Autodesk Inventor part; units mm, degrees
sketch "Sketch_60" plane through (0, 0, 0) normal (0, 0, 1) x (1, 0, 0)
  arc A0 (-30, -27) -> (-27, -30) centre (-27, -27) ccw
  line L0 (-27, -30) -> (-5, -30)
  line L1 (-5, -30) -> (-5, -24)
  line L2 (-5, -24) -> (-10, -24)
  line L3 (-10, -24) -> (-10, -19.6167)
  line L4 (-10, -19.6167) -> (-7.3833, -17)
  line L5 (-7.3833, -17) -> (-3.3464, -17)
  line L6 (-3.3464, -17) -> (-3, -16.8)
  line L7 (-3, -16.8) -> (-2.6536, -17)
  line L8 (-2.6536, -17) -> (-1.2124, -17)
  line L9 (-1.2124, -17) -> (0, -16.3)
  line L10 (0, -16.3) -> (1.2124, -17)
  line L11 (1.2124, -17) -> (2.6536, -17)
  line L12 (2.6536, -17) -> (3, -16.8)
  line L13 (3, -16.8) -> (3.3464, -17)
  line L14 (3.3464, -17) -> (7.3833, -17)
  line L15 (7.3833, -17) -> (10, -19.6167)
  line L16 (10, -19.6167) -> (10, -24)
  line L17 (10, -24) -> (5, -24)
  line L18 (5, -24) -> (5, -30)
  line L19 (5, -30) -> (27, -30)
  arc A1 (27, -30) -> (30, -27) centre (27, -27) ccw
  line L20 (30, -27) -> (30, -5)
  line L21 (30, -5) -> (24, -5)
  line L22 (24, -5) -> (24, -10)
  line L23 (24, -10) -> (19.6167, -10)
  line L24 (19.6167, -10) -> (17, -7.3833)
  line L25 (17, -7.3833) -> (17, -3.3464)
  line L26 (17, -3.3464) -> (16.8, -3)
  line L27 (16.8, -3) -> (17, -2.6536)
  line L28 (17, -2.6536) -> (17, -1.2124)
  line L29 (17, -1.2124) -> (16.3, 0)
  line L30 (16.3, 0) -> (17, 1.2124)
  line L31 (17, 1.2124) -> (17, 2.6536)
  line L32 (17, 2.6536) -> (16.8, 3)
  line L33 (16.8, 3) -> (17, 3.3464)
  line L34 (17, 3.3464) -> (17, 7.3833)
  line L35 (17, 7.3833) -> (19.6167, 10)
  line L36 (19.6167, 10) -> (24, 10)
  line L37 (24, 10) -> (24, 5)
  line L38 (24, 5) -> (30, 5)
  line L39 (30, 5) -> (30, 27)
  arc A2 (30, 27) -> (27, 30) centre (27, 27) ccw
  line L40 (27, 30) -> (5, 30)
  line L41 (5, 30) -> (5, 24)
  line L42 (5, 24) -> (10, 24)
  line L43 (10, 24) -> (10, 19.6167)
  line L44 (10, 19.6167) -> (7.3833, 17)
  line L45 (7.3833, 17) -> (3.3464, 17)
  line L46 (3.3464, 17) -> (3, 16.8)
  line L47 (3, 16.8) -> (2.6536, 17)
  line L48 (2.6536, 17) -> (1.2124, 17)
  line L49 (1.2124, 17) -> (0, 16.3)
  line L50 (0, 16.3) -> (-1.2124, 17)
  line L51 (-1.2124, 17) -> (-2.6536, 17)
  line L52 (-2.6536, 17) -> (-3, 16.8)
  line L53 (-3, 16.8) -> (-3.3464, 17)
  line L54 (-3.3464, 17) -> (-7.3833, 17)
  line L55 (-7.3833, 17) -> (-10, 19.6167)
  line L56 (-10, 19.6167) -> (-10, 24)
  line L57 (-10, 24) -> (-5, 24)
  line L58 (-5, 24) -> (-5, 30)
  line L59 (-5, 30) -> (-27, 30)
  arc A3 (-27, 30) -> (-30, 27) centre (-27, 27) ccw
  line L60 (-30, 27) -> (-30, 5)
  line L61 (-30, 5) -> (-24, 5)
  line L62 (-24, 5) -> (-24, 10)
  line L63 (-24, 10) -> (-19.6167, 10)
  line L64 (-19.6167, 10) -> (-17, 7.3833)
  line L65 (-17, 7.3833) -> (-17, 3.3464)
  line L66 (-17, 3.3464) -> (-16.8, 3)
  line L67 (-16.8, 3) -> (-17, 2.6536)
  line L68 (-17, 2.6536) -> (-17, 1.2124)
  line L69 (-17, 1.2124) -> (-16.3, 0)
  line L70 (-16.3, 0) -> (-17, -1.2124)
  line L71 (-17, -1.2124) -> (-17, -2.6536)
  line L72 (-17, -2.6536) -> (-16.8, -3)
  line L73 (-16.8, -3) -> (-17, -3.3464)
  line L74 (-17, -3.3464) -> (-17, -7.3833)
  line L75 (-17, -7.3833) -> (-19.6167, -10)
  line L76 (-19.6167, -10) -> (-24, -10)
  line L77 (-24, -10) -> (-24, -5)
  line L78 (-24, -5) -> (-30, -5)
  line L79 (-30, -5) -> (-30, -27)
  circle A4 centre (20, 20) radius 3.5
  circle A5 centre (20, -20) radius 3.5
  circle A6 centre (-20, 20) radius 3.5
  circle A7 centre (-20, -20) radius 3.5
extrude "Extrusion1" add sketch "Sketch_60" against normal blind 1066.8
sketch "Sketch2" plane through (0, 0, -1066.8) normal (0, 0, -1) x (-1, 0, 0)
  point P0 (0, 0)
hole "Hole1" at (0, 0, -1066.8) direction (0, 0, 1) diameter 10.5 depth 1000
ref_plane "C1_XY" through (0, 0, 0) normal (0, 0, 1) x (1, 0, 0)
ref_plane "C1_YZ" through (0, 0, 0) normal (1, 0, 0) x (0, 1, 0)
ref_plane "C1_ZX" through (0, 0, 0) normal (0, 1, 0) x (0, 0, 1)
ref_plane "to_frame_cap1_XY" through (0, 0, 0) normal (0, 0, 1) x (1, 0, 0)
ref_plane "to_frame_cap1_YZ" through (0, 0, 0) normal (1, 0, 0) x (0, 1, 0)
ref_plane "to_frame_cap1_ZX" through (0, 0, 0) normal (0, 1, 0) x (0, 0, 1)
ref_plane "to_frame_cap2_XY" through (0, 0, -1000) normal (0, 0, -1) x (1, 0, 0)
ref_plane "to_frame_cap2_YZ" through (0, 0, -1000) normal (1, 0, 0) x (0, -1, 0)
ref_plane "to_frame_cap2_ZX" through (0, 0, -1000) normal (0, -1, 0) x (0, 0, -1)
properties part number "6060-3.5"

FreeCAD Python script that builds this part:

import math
import FreeCAD as App
import Part
import Sketcher
from FreeCAD import Vector
Q = App.Units.Quantity

doc = App.newDocument("Part")
body = doc.addObject("PartDesign::Body", "Body")

# Sketch on XY plane
sketch1 = body.newObject("Sketcher::SketchObject", "Sketch")
sketch1.AttachmentSupport = (doc.getObject("XY_Plane"), [""])
sketch1.MapMode = "FlatFace"
sketch1.addGeometry([
    Part.LineSegment(Vector(-30, -5, 0), Vector(-30, -27, 0)),  # 0
    Part.ArcOfCircle(Part.Circle(Vector(-27, -27, 0), Vector(0, 0, 1), 3), math.radians(180), math.radians(270)),  # 1
    Part.LineSegment(Vector(-27, -30, 0), Vector(-5, -30, 0)),  # 2
    Part.LineSegment(Vector(-5, -30, 0), Vector(-5, -24, 0)),  # 3
    Part.LineSegment(Vector(-5, -24, 0), Vector(-10, -24, 0)),  # 4
    Part.LineSegment(Vector(-10, -24, 0), Vector(-10, -19.62, 0)),  # 5
    Part.LineSegment(Vector(-10, -19.62, 0), Vector(-7.38, -17, 0)),  # 6
    Part.LineSegment(Vector(-7.38, -17, 0), Vector(-3.35, -17, 0)),  # 7
    Part.LineSegment(Vector(-3.35, -17, 0), Vector(-3, -16.8, 0)),  # 8
    Part.LineSegment(Vector(-3, -16.8, 0), Vector(-2.65, -17, 0)),  # 9
    Part.LineSegment(Vector(-2.65, -17, 0), Vector(-1.21, -17, 0)),  # 10
    Part.LineSegment(Vector(-1.21, -17, 0), Vector(0, -16.3, 0)),  # 11
    Part.LineSegment(Vector(0, -16.3, 0), Vector(1.21, -17, 0)),  # 12
    Part.LineSegment(Vector(1.21, -17, 0), Vector(2.65, -17, 0)),  # 13
    Part.LineSegment(Vector(2.65, -17, 0), Vector(3, -16.8, 0)),  # 14
    Part.LineSegment(Vector(3, -16.8, 0), Vector(3.35, -17, 0)),  # 15
    Part.LineSegment(Vector(3.35, -17, 0), Vector(7.38, -17, 0)),  # 16
    Part.LineSegment(Vector(7.38, -17, 0), Vector(10, -19.62, 0)),  # 17
    Part.LineSegment(Vector(10, -19.62, 0), Vector(10, -24, 0)),  # 18
    Part.LineSegment(Vector(10, -24, 0), Vector(5, -24, 0)),  # 19
    Part.LineSegment(Vector(5, -24, 0), Vector(5, -30, 0)),  # 20
    Part.LineSegment(Vector(5, -30, 0), Vector(27, -30, 0)),  # 21
    Part.ArcOfCircle(Part.Circle(Vector(27, -27, 0), Vector(0, 0, 1), 3), math.radians(-90), math.radians(0)),  # 22
    Part.LineSegment(Vector(30, -27, 0), Vector(30, -5, 0)),  # 23
    Part.LineSegment(Vector(30, -5, 0), Vector(24, -5, 0)),  # 24
    Part.LineSegment(Vector(24, -5, 0), Vector(24, -10, 0)),  # 25
    Part.LineSegment(Vector(24, -10, 0), Vector(19.62, -10, 0)),  # 26
    Part.LineSegment(Vector(19.62, -10, 0), Vector(17, -7.38, 0)),  # 27
    Part.LineSegment(Vector(17, -7.38, 0), Vector(17, -3.35, 0)),  # 28
    Part.LineSegment(Vector(17, -3.35, 0), Vector(16.8, -3, 0)),  # 29
    Part.LineSegment(Vector(16.8, -3, 0), Vector(17, -2.65, 0)),  # 30
    Part.LineSegment(Vector(17, -2.65, 0), Vector(17, -1.21, 0)),  # 31
    Part.LineSegment(Vector(17, -1.21, 0), Vector(16.3, 0, 0)),  # 32
    Part.LineSegment(Vector(16.3, 0, 0), Vector(17, 1.21, 0)),  # 33
    Part.LineSegment(Vector(17, 1.21, 0), Vector(17, 2.65, 0)),  # 34
    Part.LineSegment(Vector(17, 2.65, 0), Vector(16.8, 3, 0)),  # 35
    Part.LineSegment(Vector(16.8, 3, 0), Vector(17, 3.35, 0)),  # 36
    Part.LineSegment(Vector(17, 3.35, 0), Vector(17, 7.38, 0)),  # 37
    Part.LineSegment(Vector(17, 7.38, 0), Vector(19.62, 10, 0)),  # 38
    Part.LineSegment(Vector(19.62, 10, 0), Vector(24, 10, 0)),  # 39
    Part.LineSegment(Vector(24, 10, 0), Vector(24, 5, 0)),  # 40
    Part.LineSegment(Vector(24, 5, 0), Vector(30, 5, 0)),  # 41
    Part.LineSegment(Vector(30, 5, 0), Vector(30, 27, 0)),  # 42
    Part.ArcOfCircle(Part.Circle(Vector(27, 27, 0), Vector(0, 0, 1), 3), math.radians(0), math.radians(90)),  # 43
    Part.LineSegment(Vector(27, 30, 0), Vector(5, 30, 0)),  # 44
    Part.LineSegment(Vector(5, 30, 0), Vector(5, 24, 0)),  # 45
    Part.LineSegment(Vector(5, 24, 0), Vector(10, 24, 0)),  # 46
    Part.LineSegment(Vector(10, 24, 0), Vector(10, 19.62, 0)),  # 47
    Part.LineSegment(Vector(10, 19.62, 0), Vector(7.38, 17, 0)),  # 48
    Part.LineSegment(Vector(7.38, 17, 0), Vector(3.35, 17, 0)),  # 49
    Part.LineSegment(Vector(3.35, 17, 0), Vector(3, 16.8, 0)),  # 50
    Part.LineSegment(Vector(3, 16.8, 0), Vector(2.65, 17, 0)),  # 51
    Part.LineSegment(Vector(2.65, 17, 0), Vector(1.21, 17, 0)),  # 52
    Part.LineSegment(Vector(1.21, 17, 0), Vector(0, 16.3, 0)),  # 53
    Part.LineSegment(Vector(0, 16.3, 0), Vector(-1.21, 17, 0)),  # 54
    Part.LineSegment(Vector(-1.21, 17, 0), Vector(-2.65, 17, 0)),  # 55
    Part.LineSegment(Vector(-2.65, 17, 0), Vector(-3, 16.8, 0)),  # 56
    Part.LineSegment(Vector(-3, 16.8, 0), Vector(-3.35, 17, 0)),  # 57
    Part.LineSegment(Vector(-3.35, 17, 0), Vector(-7.38, 17, 0)),  # 58
    Part.LineSegment(Vector(-7.38, 17, 0), Vector(-10, 19.62, 0)),  # 59
    Part.LineSegment(Vector(-10, 19.62, 0), Vector(-10, 24, 0)),  # 60
    Part.LineSegment(Vector(-10, 24, 0), Vector(-5, 24, 0)),  # 61
    Part.LineSegment(Vector(-5, 24, 0), Vector(-5, 30, 0)),  # 62
    Part.LineSegment(Vector(-5, 30, 0), Vector(-27, 30, 0)),  # 63
    Part.ArcOfCircle(Part.Circle(Vector(-27, 27, 0), Vector(0, 0, 1), 3), math.radians(90), math.radians(180)),  # 64
    Part.LineSegment(Vector(-30, 27, 0), Vector(-30, 5, 0)),  # 65
    Part.LineSegment(Vector(-30, 5, 0), Vector(-24, 5, 0)),  # 66
    Part.LineSegment(Vector(-24, 5, 0), Vector(-24, 10, 0)),  # 67
    Part.LineSegment(Vector(-24, 10, 0), Vector(-19.62, 10, 0)),  # 68
    Part.LineSegment(Vector(-19.62, 10, 0), Vector(-17, 7.38, 0)),  # 69
    Part.LineSegment(Vector(-17, 7.38, 0), Vector(-17, 3.35, 0)),  # 70
    Part.LineSegment(Vector(-17, 3.35, 0), Vector(-16.8, 3, 0)),  # 71
    Part.LineSegment(Vector(-16.8, 3, 0), Vector(-17, 2.65, 0)),  # 72
    Part.LineSegment(Vector(-17, 2.65, 0), Vector(-17, 1.21, 0)),  # 73
    Part.LineSegment(Vector(-17, 1.21, 0), Vector(-16.3, 0, 0)),  # 74
    Part.LineSegment(Vector(-16.3, 0, 0), Vector(-17, -1.21, 0)),  # 75
    Part.LineSegment(Vector(-17, -1.21, 0), Vector(-17, -2.65, 0)),  # 76
    Part.LineSegment(Vector(-17, -2.65, 0), Vector(-16.8, -3, 0)),  # 77
    Part.LineSegment(Vector(-16.8, -3, 0), Vector(-17, -3.35, 0)),  # 78
    Part.LineSegment(Vector(-17, -3.35, 0), Vector(-17, -7.38, 0)),  # 79
    Part.LineSegment(Vector(-17, -7.38, 0), Vector(-19.62, -10, 0)),  # 80
    Part.LineSegment(Vector(-19.62, -10, 0), Vector(-24, -10, 0)),  # 81
    Part.LineSegment(Vector(-24, -10, 0), Vector(-24, -5, 0)),  # 82
    Part.LineSegment(Vector(-24, -5, 0), Vector(-30, -5, 0)),  # 83
    Part.Circle(Vector(-20, -20, 0), Vector(0, 0, 1), 3.5),  # 84
    Part.Circle(Vector(20, -20, 0), Vector(0, 0, 1), 3.5),  # 85
    Part.Circle(Vector(-20, 20, 0), Vector(0, 0, 1), 3.5),  # 86
    Part.Circle(Vector(20, 20, 0), Vector(0, 0, 1), 3.5),  # 87
], False)
sketch1.addConstraint([
    Sketcher.Constraint("Tangent", 0, 2, 1, 1),
    Sketcher.Constraint("Tangent", 1, 2, 2, 1),
    Sketcher.Constraint("Coincident", 2, 2, 3, 1),
    Sketcher.Constraint("Coincident", 3, 2, 4, 1),
    Sketcher.Constraint("Coincident", 4, 2, 5, 1),
    Sketcher.Constraint("Coincident", 5, 2, 6, 1),
    Sketcher.Constraint("Coincident", 6, 2, 7, 1),
    Sketcher.Constraint("Coincident", 7, 2, 8, 1),
    Sketcher.Constraint("Coincident", 8, 2, 9, 1),
    Sketcher.Constraint("Coincident", 9, 2, 10, 1),
    Sketcher.Constraint("Coincident", 10, 2, 11, 1),
    Sketcher.Constraint("Coincident", 11, 2, 12, 1),
    Sketcher.Constraint("Coincident", 12, 2, 13, 1),
    Sketcher.Constraint("Coincident", 13, 2, 14, 1),
    Sketcher.Constraint("Coincident", 14, 2, 15, 1),
    Sketcher.Constraint("Coincident", 15, 2, 16, 1),
    Sketcher.Constraint("Coincident", 16, 2, 17, 1),
    Sketcher.Constraint("Coincident", 17, 2, 18, 1),
    Sketcher.Constraint("Coincident", 18, 2, 19, 1),
    Sketcher.Constraint("Coincident", 19, 2, 20, 1),
    Sketcher.Constraint("Coincident", 20, 2, 21, 1),
    Sketcher.Constraint("Tangent", 21, 2, 22, 1),
    Sketcher.Constraint("Tangent", 22, 2, 23, 1),
    Sketcher.Constraint("Coincident", 23, 2, 24, 1),
    Sketcher.Constraint("Coincident", 24, 2, 25, 1),
    Sketcher.Constraint("Coincident", 25, 2, 26, 1),
    Sketcher.Constraint("Coincident", 26, 2, 27, 1),
    Sketcher.Constraint("Coincident", 27, 2, 28, 1),
    Sketcher.Constraint("Coincident", 28, 2, 29, 1),
    Sketcher.Constraint("Coincident", 29, 2, 30, 1),
    Sketcher.Constraint("Coincident", 30, 2, 31, 1),
    Sketcher.Constraint("Coincident", 31, 2, 32, 1),
    Sketcher.Constraint("Coincident", 32, 2, 33, 1),
    Sketcher.Constraint("Coincident", 33, 2, 34, 1),
    Sketcher.Constraint("Coincident", 34, 2, 35, 1),
    Sketcher.Constraint("Coincident", 35, 2, 36, 1),
    Sketcher.Constraint("Coincident", 36, 2, 37, 1),
    Sketcher.Constraint("Coincident", 37, 2, 38, 1),
    Sketcher.Constraint("Coincident", 38, 2, 39, 1),
    Sketcher.Constraint("Coincident", 39, 2, 40, 1),
    Sketcher.Constraint("Coincident", 40, 2, 41, 1),
    Sketcher.Constraint("Coincident", 41, 2, 42, 1),
    Sketcher.Constraint("Tangent", 42, 2, 43, 1),
    Sketcher.Constraint("Tangent", 43, 2, 44, 1),
    Sketcher.Constraint("Coincident", 44, 2, 45, 1),
    Sketcher.Constraint("Coincident", 45, 2, 46, 1),
    Sketcher.Constraint("Coincident", 46, 2, 47, 1),
    Sketcher.Constraint("Coincident", 47, 2, 48, 1),
    Sketcher.Constraint("Coincident", 48, 2, 49, 1),
    Sketcher.Constraint("Coincident", 49, 2, 50, 1),
    Sketcher.Constraint("Coincident", 50, 2, 51, 1),
    Sketcher.Constraint("Coincident", 51, 2, 52, 1),
    Sketcher.Constraint("Coincident", 52, 2, 53, 1),
    Sketcher.Constraint("Coincident", 53, 2, 54, 1),
    Sketcher.Constraint("Coincident", 54, 2, 55, 1),
    Sketcher.Constraint("Coincident", 55, 2, 56, 1),
    Sketcher.Constraint("Coincident", 56, 2, 57, 1),
    Sketcher.Constraint("Coincident", 57, 2, 58, 1),
    Sketcher.Constraint("Coincident", 58, 2, 59, 1),
    Sketcher.Constraint("Coincident", 59, 2, 60, 1),
    Sketcher.Constraint("Coincident", 60, 2, 61, 1),
    Sketcher.Constraint("Coincident", 61, 2, 62, 1),
    Sketcher.Constraint("Coincident", 62, 2, 63, 1),
    Sketcher.Constraint("Tangent", 63, 2, 64, 1),
    Sketcher.Constraint("Tangent", 64, 2, 65, 1),
    Sketcher.Constraint("Coincident", 65, 2, 66, 1),
    Sketcher.Constraint("Coincident", 66, 2, 67, 1),
    Sketcher.Constraint("Coincident", 67, 2, 68, 1),
    Sketcher.Constraint("Coincident", 68, 2, 69, 1),
    Sketcher.Constraint("Coincident", 69, 2, 70, 1),
    Sketcher.Constraint("Coincident", 70, 2, 71, 1),
    Sketcher.Constraint("Coincident", 71, 2, 72, 1),
    Sketcher.Constraint("Coincident", 72, 2, 73, 1),
    Sketcher.Constraint("Coincident", 73, 2, 74, 1),
    Sketcher.Constraint("Coincident", 74, 2, 75, 1),
    Sketcher.Constraint("Coincident", 75, 2, 76, 1),
    Sketcher.Constraint("Coincident", 76, 2, 77, 1),
    Sketcher.Constraint("Coincident", 77, 2, 78, 1),
    Sketcher.Constraint("Coincident", 78, 2, 79, 1),
    Sketcher.Constraint("Coincident", 79, 2, 80, 1),
    Sketcher.Constraint("Coincident", 80, 2, 81, 1),
    Sketcher.Constraint("Coincident", 81, 2, 82, 1),
    Sketcher.Constraint("Coincident", 82, 2, 83, 1),
    Sketcher.Constraint("Coincident", 83, 2, 0, 1),
    Sketcher.Constraint("Vertical", 0),
    Sketcher.Constraint("Horizontal", 2),
    Sketcher.Constraint("Vertical", 3),
    Sketcher.Constraint("Horizontal", 4),
    Sketcher.Constraint("Vertical", 5),
    Sketcher.Constraint("Horizontal", 7),
    Sketcher.Constraint("Horizontal", 10),
    Sketcher.Constraint("Horizontal", 13),
    Sketcher.Constraint("Horizontal", 16),
    Sketcher.Constraint("Vertical", 18),
    Sketcher.Constraint("Horizontal", 19),
    Sketcher.Constraint("Vertical", 20),
    Sketcher.Constraint("Horizontal", 21),
    Sketcher.Constraint("Vertical", 23),
    Sketcher.Constraint("Horizontal", 24),
    Sketcher.Constraint("Vertical", 25),
    Sketcher.Constraint("Horizontal", 26),
    Sketcher.Constraint("Vertical", 28),
    Sketcher.Constraint("Vertical", 31),
    Sketcher.Constraint("Vertical", 34),
    Sketcher.Constraint("Vertical", 37),
    Sketcher.Constraint("Horizontal", 39),
    Sketcher.Constraint("Vertical", 40),
    Sketcher.Constraint("Horizontal", 41),
    Sketcher.Constraint("Vertical", 42),
    Sketcher.Constraint("Horizontal", 44),
    Sketcher.Constraint("Vertical", 45),
    Sketcher.Constraint("Horizontal", 46),
    Sketcher.Constraint("Vertical", 47),
    Sketcher.Constraint("Horizontal", 49),
    Sketcher.Constraint("Horizontal", 52),
    Sketcher.Constraint("Horizontal", 55),
    Sketcher.Constraint("Horizontal", 58),
    Sketcher.Constraint("Vertical", 60),
    Sketcher.Constraint("Horizontal", 61),
    Sketcher.Constraint("Vertical", 62),
    Sketcher.Constraint("Horizontal", 63),
    Sketcher.Constraint("Vertical", 65),
    Sketcher.Constraint("Horizontal", 66),
    Sketcher.Constraint("Vertical", 67),
    Sketcher.Constraint("Horizontal", 68),
    Sketcher.Constraint("Vertical", 70),
    Sketcher.Constraint("Vertical", 73),
    Sketcher.Constraint("Vertical", 76),
    Sketcher.Constraint("Vertical", 79),
    Sketcher.Constraint("Horizontal", 81),
    Sketcher.Constraint("Vertical", 82),
    Sketcher.Constraint("Horizontal", 83),
    Sketcher.Constraint("Equal", 1, 22),
    Sketcher.Constraint("Equal", 22, 43),
    Sketcher.Constraint("Equal", 43, 64),
    Sketcher.Constraint("Equal", 84, 85),
    Sketcher.Constraint("Equal", 85, 86),
    Sketcher.Constraint("Equal", 86, 87),
    Sketcher.Constraint("Symmetric", 1, 3, 43, 3, -1, 1),
    Sketcher.Constraint("Symmetric", 22, 3, 64, 3, -1, 1),
    Sketcher.Constraint("Symmetric", 85, 3, 86, 3, -1, 1),
    Sketcher.Constraint("Symmetric", 84, 3, 87, 3, -1, 1),
    Sketcher.Constraint("Symmetric", 3, 2, 45, 2, -1, 1),
    Sketcher.Constraint("Symmetric", 5, 2, 47, 2, -1, 1),
    Sketcher.Constraint("Symmetric", 6, 2, 48, 2, -1, 1),
    Sketcher.Constraint("Symmetric", 8, 2, 50, 2, -1, 1),
    Sketcher.Constraint("Symmetric", 9, 2, 51, 2, -1, 1),
    Sketcher.Constraint("Symmetric", 11, 2, 53, 2, -1, 1),
    Sketcher.Constraint("Symmetric", 12, 2, 54, 2, -1, 1),
    Sketcher.Constraint("Symmetric", 14, 2, 56, 2, -1, 1),
    Sketcher.Constraint("Symmetric", 15, 2, 57, 2, -1, 1),
    Sketcher.Constraint("Symmetric", 17, 2, 59, 2, -1, 1),
    Sketcher.Constraint("Symmetric", 19, 2, 61, 2, -1, 1),
    Sketcher.Constraint("Symmetric", 24, 2, 66, 2, -1, 1),
    Sketcher.Constraint("Symmetric", 26, 2, 68, 2, -1, 1),
    Sketcher.Constraint("Symmetric", 27, 2, 69, 2, -1, 1),
    Sketcher.Constraint("Symmetric", 29, 2, 71, 2, -1, 1),
    Sketcher.Constraint("Symmetric", 30, 2, 72, 2, -1, 1),
    Sketcher.Constraint("Symmetric", 32, 2, 74, 2, -1, 1),
    Sketcher.Constraint("Symmetric", 33, 2, 75, 2, -1, 1),
    Sketcher.Constraint("Symmetric", 35, 2, 77, 2, -1, 1),
    Sketcher.Constraint("Symmetric", 36, 2, 78, 2, -1, 1),
    Sketcher.Constraint("Symmetric", 38, 2, 80, 2, -1, 1),
    Sketcher.Constraint("Symmetric", 40, 2, 82, 2, -1, 1),
    Sketcher.Constraint("Symmetric", 1, 3, 22, 3, -2),
    Sketcher.Constraint("Symmetric", 84, 3, 85, 3, -2),
    Sketcher.Constraint("Symmetric", 10, 2, 12, 2, -2),
    Sketcher.Constraint("Symmetric", 8, 2, 14, 2, -2),
    Sketcher.Constraint("Symmetric", 7, 2, 15, 2, -2),
    Sketcher.Constraint("Symmetric", 5, 2, 17, 2, -2),
    Sketcher.Constraint("Symmetric", 3, 2, 19, 2, -2),
    Sketcher.Constraint("Symmetric", 40, 2, 66, 2, -2),
    Sketcher.Constraint("Symmetric", 38, 2, 68, 2, -2),
    Sketcher.Constraint("Symmetric", 37, 2, 69, 2, -2),
    Sketcher.Constraint("Symmetric", 35, 2, 71, 2, -2),
    Sketcher.Constraint("Symmetric", 34, 2, 72, 2, -2),
    Sketcher.Constraint("PointOnObject", 11, 2, -2),
    Sketcher.Constraint("PointOnObject", 32, 2, -1),
    Sketcher.Constraint("Parallel", 8, 11),
    Sketcher.Constraint("Parallel", 9, 12),
    Sketcher.Constraint("Parallel", 11, 14),
    Sketcher.Constraint("Perpendicular", 6, 17),
    Sketcher.Constraint("Parallel", 17, 27),
    Sketcher.Constraint("Perpendicular", 14, 29),
    Sketcher.Constraint("Perpendicular", 15, 30),
    Sketcher.Constraint("Parallel", 29, 32),
    Sketcher.Constraint("Parallel", 30, 33),
    Sketcher.Constraint("Parallel", 33, 36),
    Sketcher.Constraint("Perpendicular", 27, 38),
    Sketcher.Constraint("Perpendicular", 35, 50),
    Sketcher.Constraint("Parallel", 50, 53),
    Sketcher.Constraint("Parallel", 53, 56),
    Sketcher.Constraint("Perpendicular", 48, 59),
    Sketcher.Constraint("Perpendicular", 56, 71),
    Sketcher.Constraint("Parallel", 71, 74),
    Sketcher.Constraint("Parallel", 74, 77),
    Sketcher.Constraint("Perpendicular", 69, 80),
    Sketcher.Constraint("Horizontal", 7, 2, 9, 2),
    Sketcher.Constraint("Vertical", 28, 2, 30, 2),
    Sketcher.Constraint("Equal", 63, 0),
    Sketcher.Constraint("Equal", 83, 3),
    Sketcher.Constraint("Equal", 81, 5),
    Sketcher.Constraint("Equal", 61, 25),
    Sketcher.Constraint("Equal", 58, 28),
    Sketcher.Constraint("Equal", 55, 31),
    Sketcher.Constraint("Equal", 17, 27),
    Sketcher.Constraint("Equal", 15, 29),
    Sketcher.Constraint("Equal", 12, 32),
    Sketcher.Constraint("Diameter", 84, Q("7 mm")),
    Sketcher.Constraint("Radius", 1, Q("3 mm")),
    Sketcher.Constraint("DistanceX", 2, 1, 2, 2, Q("22 mm")),
    Sketcher.Constraint("DistanceX", 4, 2, 4, 1, Q("5 mm")),
    Sketcher.Constraint("DistanceX", 24, 2, 24, 1, Q("6 mm")),
    Sketcher.Constraint("Angle", 8, Q("30.0007 deg")),
    Sketcher.Constraint("DistanceX", 1, 3, -1, 1, Q("27 mm")),
    Sketcher.Constraint("DistanceX", 84, 3, -1, 1, Q("20 mm")),
    Sketcher.Constraint("DistanceY", 84, 3, -1, 1, Q("20 mm")),
    Sketcher.Constraint("DistanceY", 6, 2, -1, 1, Q("17 mm")),
    Sketcher.Constraint("DistanceX", 8, 2, -1, 1, Q("3 mm")),
    Sketcher.Constraint("Distance", 8, Q("0.4 mm")),
    Sketcher.Constraint("Distance", 11, Q("1.4 mm")),
    Sketcher.Constraint("DistanceX", 7, 1, 7, 2, Q("4.037 mm")),
])
pad1 = body.newObject("PartDesign::Pad", "Pad")
pad1.Profile = sketch1
pad1.Length = 1066.8
pad1.Reversed = True

# Sketch on XY plane
sketch2 = body.newObject("Sketcher::SketchObject", "Sketch001")
sketch2.AttachmentSupport = (doc.getObject("XY_Plane"), [""])
sketch2.MapMode = "FlatFace"
sketch2.AttachmentOffset = App.Placement(Vector(0, 0, -1066.8), App.Rotation())
sketch2.addGeometry(Part.Circle(Vector(0, 0, 0), Vector(0, 0, 1), 5), False)
sketch2.addConstraint([
    Sketcher.Constraint("Coincident", 0, 3, -1, 1),
    Sketcher.Constraint("Diameter", 0, Q("10.5 mm")),
])
doc.recompute()
hole = body.newObject("PartDesign::Hole", "Hole")
hole.Profile = sketch2
hole.ThreadType = "None"
hole.Diameter = 10.5
hole.DepthType = "Dimension"
hole.Depth = 1000
hole.DrillPoint = "Flat"
hole.Reversed = True

doc.recompute()
